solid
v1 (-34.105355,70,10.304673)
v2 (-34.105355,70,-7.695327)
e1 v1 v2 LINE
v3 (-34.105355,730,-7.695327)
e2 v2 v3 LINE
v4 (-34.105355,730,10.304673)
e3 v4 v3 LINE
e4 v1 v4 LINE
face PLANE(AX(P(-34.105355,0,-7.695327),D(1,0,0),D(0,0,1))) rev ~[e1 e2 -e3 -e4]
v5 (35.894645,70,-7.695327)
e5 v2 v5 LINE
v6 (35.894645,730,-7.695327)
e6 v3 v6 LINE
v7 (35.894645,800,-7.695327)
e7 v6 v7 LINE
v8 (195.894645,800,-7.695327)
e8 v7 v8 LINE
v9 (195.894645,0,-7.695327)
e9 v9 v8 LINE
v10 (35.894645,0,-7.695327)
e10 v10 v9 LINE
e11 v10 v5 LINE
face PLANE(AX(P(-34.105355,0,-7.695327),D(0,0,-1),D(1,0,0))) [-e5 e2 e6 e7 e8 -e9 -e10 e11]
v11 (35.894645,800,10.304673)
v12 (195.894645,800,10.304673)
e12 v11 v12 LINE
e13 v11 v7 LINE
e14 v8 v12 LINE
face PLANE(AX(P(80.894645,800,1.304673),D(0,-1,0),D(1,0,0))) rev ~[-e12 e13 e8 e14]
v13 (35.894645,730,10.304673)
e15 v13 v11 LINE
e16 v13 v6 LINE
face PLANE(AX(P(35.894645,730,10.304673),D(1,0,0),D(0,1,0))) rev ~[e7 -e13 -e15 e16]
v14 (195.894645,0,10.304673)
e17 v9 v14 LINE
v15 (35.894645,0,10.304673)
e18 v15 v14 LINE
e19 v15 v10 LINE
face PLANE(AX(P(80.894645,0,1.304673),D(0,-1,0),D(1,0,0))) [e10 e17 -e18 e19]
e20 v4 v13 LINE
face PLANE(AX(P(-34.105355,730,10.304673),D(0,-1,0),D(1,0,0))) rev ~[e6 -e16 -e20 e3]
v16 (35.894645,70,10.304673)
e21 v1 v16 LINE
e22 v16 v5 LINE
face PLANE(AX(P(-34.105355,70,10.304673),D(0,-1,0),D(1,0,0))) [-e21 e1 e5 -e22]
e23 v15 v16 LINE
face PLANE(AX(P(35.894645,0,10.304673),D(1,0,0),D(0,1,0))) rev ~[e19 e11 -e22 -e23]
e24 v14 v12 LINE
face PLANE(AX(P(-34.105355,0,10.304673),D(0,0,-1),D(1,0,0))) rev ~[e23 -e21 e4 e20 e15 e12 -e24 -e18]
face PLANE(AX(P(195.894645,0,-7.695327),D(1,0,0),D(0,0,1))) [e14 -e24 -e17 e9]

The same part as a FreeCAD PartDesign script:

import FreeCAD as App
import Part
import Sketcher

V = App.Vector
Q = App.Units.Quantity

doc = App.newDocument("Part")
params = doc.addObject("Spreadsheet::Sheet", "Params")
for row, (alias, value) in enumerate([
    ("sketch1_width", "230 mm"),
    ("sketch1_height", "18 mm"),
    ("pad1_length", "800 mm"),
    ("sketch2_width", "70 mm"),
    ("pocket1_length", "18 mm"),
    ("sketch3_width", "70 mm"),
    ("pocket2_length", "18 mm"),
], start=1):
    params.set(f"A{row}", alias)
    params.set(f"B{row}", "=" + value)
    params.setAlias(f"B{row}", alias)

body = doc.addObject("PartDesign::Body", "Body")

# Sketch on XZ plane
sketch1 = body.newObject("Sketcher::SketchObject", "Sketch")
sketch1.AttachmentSupport = (doc.getObject("XZ_Plane"), [""])
sketch1.MapMode = "FlatFace"
sketch1.addGeometry(Part.LineSegment(V(-34, 10, 0), V(-34, -8, 0)), False)
sketch1.addGeometry(Part.LineSegment(V(-34, -8, 0), V(196, -8, 0)), False)
sketch1.addGeometry(Part.LineSegment(V(196, -8, 0), V(196, 10, 0)), False)
sketch1.addGeometry(Part.LineSegment(V(196, 10, 0), V(-34, 10, 0)), False)
sketch1.addConstraint(Sketcher.Constraint("Coincident", 0, 2, 1, 1))
sketch1.addConstraint(Sketcher.Constraint("Coincident", 1, 2, 2, 1))
sketch1.addConstraint(Sketcher.Constraint("Coincident", 2, 2, 3, 1))
sketch1.addConstraint(Sketcher.Constraint("Coincident", 3, 2, 0, 1))
sketch1.addConstraint(Sketcher.Constraint("Vertical", 0))
sketch1.addConstraint(Sketcher.Constraint("Horizontal", 1))
sketch1.addConstraint(Sketcher.Constraint("Vertical", 2))
sketch1.addConstraint(Sketcher.Constraint("Horizontal", 3))
sketch1.addConstraint(Sketcher.Constraint("DistanceX", 1, 1, 1, 2, Q("230 mm")))
sketch1.addConstraint(Sketcher.Constraint("DistanceY", 0, 2, 0, 1, Q("18 mm")))
sketch1.addConstraint(Sketcher.Constraint("DistanceX", 0, 2, -1, 1, Q("34.105355 mm")))
sketch1.addConstraint(Sketcher.Constraint("DistanceY", 0, 2, -1, 1, Q("7.695327 mm")))
sketch1.setExpression("Constraints[8]", "Params.sketch1_width")
sketch1.setExpression("Constraints[9]", "Params.sketch1_height")
pad1 = body.newObject("PartDesign::Pad", "Pad")
pad1.Profile = sketch1
pad1.setExpression("Length", "Params.pad1_length")
pad1.Reversed = True

# Sketch on XY plane
sketch2 = body.newObject("Sketcher::SketchObject", "Sketch001")
sketch2.AttachmentSupport = (doc.getObject("XY_Plane"), [""])
sketch2.MapMode = "FlatFace"
sketch2.AttachmentOffset = App.Placement(V(0, 0, 10.304673), App.Rotation())
sketch2.addGeometry(Part.LineSegment(V(-34, 800, 0), V(-34, 730, 0)), False)
sketch2.addGeometry(Part.LineSegment(V(-34, 730, 0), V(36, 730, 0)), False)
sketch2.addGeometry(Part.LineSegment(V(36, 730, 0), V(36, 800, 0)), False)
sketch2.addGeometry(Part.LineSegment(V(36, 800, 0), V(-34, 800, 0)), False)
sketch2.addConstraint(Sketcher.Constraint("Coincident", 0, 2, 1, 1))
sketch2.addConstraint(Sketcher.Constraint("Coincident", 1, 2, 2, 1))
sketch2.addConstraint(Sketcher.Constraint("Coincident", 2, 2, 3, 1))
sketch2.addConstraint(Sketcher.Constraint("Coincident", 3, 2, 0, 1))
sketch2.addConstraint(Sketcher.Constraint("Vertical", 0))
sketch2.addConstraint(Sketcher.Constraint("Horizontal", 1))
sketch2.addConstraint(Sketcher.Constraint("Vertical", 2))
sketch2.addConstraint(Sketcher.Constraint("Horizontal", 3))
sketch2.addConstraint(Sketcher.Constraint("Equal", 3, 0))
sketch2.addConstraint(Sketcher.Constraint("DistanceX", 1, 1, 1, 2, Q("70 mm")))
sketch2.addConstraint(Sketcher.Constraint("DistanceY", -1, 1, 0, 2, Q("730 mm")))
sketch2.addConstraint(Sketcher.Constraint("DistanceX", 0, 2, -1, 1, Q("34.105355 mm")))
sketch2.setExpression("Constraints[9]", "Params.sketch2_width")
pocket1 = body.newObject("PartDesign::Pocket", "Pocket")
pocket1.Profile = sketch2
pocket1.setExpression("Length", "Params.pocket1_length")

# Sketch on XY plane
sketch3 = body.newObject("Sketcher::SketchObject", "Sketch002")
sketch3.AttachmentSupport = (doc.getObject("XY_Plane"), [""])
sketch3.MapMode = "FlatFace"
sketch3.AttachmentOffset = App.Placement(V(0, 0, 10.304673), App.Rotation())
sketch3.addGeometry(Part.LineSegment(V(-34, 70, 0), V(-34, 0, 0)), False)
sketch3.addGeometry(Part.LineSegment(V(-34, 0, 0), V(36, 0, 0)), False)
sketch3.addGeometry(Part.LineSegment(V(36, 0, 0), V(36, 70, 0)), False)
sketch3.addGeometry(Part.LineSegment(V(36, 70, 0), V(-34, 70, 0)), False)
sketch3.addConstraint(Sketcher.Constraint("Coincident", 0, 2, 1, 1))
sketch3.addConstraint(Sketcher.Constraint("Coincident", 1, 2, 2, 1))
sketch3.addConstraint(Sketcher.Constraint("Coincident", 2, 2, 3, 1))
sketch3.addConstraint(Sketcher.Constraint("Coincident", 3, 2, 0, 1))
sketch3.addConstraint(Sketcher.Constraint("Vertical", 0))
sketch3.addConstraint(Sketcher.Constraint("Horizontal", 1))
sketch3.addConstraint(Sketcher.Constraint("Vertical", 2))
sketch3.addConstraint(Sketcher.Constraint("Horizontal", 3))
sketch3.addConstraint(Sketcher.Constraint("PointOnObject", 0, 2, -1))
sketch3.addConstraint(Sketcher.Constraint("Equal", 3, 0))
sketch3.addConstraint(Sketcher.Constraint("DistanceX", 1, 1, 1, 2, Q("70 mm")))
sketch3.addConstraint(Sketcher.Constraint("DistanceX", 0, 2, -1, 1, Q("34.105355 mm")))
sketch3.setExpression("Constraints[10]", "Params.sketch3_width")
pocket2 = body.newObject("PartDesign::Pocket", "Pocket001")
pocket2.Profile = sketch3
pocket2.setExpression("Length", "Params.pocket2_length")

doc.recompute()
